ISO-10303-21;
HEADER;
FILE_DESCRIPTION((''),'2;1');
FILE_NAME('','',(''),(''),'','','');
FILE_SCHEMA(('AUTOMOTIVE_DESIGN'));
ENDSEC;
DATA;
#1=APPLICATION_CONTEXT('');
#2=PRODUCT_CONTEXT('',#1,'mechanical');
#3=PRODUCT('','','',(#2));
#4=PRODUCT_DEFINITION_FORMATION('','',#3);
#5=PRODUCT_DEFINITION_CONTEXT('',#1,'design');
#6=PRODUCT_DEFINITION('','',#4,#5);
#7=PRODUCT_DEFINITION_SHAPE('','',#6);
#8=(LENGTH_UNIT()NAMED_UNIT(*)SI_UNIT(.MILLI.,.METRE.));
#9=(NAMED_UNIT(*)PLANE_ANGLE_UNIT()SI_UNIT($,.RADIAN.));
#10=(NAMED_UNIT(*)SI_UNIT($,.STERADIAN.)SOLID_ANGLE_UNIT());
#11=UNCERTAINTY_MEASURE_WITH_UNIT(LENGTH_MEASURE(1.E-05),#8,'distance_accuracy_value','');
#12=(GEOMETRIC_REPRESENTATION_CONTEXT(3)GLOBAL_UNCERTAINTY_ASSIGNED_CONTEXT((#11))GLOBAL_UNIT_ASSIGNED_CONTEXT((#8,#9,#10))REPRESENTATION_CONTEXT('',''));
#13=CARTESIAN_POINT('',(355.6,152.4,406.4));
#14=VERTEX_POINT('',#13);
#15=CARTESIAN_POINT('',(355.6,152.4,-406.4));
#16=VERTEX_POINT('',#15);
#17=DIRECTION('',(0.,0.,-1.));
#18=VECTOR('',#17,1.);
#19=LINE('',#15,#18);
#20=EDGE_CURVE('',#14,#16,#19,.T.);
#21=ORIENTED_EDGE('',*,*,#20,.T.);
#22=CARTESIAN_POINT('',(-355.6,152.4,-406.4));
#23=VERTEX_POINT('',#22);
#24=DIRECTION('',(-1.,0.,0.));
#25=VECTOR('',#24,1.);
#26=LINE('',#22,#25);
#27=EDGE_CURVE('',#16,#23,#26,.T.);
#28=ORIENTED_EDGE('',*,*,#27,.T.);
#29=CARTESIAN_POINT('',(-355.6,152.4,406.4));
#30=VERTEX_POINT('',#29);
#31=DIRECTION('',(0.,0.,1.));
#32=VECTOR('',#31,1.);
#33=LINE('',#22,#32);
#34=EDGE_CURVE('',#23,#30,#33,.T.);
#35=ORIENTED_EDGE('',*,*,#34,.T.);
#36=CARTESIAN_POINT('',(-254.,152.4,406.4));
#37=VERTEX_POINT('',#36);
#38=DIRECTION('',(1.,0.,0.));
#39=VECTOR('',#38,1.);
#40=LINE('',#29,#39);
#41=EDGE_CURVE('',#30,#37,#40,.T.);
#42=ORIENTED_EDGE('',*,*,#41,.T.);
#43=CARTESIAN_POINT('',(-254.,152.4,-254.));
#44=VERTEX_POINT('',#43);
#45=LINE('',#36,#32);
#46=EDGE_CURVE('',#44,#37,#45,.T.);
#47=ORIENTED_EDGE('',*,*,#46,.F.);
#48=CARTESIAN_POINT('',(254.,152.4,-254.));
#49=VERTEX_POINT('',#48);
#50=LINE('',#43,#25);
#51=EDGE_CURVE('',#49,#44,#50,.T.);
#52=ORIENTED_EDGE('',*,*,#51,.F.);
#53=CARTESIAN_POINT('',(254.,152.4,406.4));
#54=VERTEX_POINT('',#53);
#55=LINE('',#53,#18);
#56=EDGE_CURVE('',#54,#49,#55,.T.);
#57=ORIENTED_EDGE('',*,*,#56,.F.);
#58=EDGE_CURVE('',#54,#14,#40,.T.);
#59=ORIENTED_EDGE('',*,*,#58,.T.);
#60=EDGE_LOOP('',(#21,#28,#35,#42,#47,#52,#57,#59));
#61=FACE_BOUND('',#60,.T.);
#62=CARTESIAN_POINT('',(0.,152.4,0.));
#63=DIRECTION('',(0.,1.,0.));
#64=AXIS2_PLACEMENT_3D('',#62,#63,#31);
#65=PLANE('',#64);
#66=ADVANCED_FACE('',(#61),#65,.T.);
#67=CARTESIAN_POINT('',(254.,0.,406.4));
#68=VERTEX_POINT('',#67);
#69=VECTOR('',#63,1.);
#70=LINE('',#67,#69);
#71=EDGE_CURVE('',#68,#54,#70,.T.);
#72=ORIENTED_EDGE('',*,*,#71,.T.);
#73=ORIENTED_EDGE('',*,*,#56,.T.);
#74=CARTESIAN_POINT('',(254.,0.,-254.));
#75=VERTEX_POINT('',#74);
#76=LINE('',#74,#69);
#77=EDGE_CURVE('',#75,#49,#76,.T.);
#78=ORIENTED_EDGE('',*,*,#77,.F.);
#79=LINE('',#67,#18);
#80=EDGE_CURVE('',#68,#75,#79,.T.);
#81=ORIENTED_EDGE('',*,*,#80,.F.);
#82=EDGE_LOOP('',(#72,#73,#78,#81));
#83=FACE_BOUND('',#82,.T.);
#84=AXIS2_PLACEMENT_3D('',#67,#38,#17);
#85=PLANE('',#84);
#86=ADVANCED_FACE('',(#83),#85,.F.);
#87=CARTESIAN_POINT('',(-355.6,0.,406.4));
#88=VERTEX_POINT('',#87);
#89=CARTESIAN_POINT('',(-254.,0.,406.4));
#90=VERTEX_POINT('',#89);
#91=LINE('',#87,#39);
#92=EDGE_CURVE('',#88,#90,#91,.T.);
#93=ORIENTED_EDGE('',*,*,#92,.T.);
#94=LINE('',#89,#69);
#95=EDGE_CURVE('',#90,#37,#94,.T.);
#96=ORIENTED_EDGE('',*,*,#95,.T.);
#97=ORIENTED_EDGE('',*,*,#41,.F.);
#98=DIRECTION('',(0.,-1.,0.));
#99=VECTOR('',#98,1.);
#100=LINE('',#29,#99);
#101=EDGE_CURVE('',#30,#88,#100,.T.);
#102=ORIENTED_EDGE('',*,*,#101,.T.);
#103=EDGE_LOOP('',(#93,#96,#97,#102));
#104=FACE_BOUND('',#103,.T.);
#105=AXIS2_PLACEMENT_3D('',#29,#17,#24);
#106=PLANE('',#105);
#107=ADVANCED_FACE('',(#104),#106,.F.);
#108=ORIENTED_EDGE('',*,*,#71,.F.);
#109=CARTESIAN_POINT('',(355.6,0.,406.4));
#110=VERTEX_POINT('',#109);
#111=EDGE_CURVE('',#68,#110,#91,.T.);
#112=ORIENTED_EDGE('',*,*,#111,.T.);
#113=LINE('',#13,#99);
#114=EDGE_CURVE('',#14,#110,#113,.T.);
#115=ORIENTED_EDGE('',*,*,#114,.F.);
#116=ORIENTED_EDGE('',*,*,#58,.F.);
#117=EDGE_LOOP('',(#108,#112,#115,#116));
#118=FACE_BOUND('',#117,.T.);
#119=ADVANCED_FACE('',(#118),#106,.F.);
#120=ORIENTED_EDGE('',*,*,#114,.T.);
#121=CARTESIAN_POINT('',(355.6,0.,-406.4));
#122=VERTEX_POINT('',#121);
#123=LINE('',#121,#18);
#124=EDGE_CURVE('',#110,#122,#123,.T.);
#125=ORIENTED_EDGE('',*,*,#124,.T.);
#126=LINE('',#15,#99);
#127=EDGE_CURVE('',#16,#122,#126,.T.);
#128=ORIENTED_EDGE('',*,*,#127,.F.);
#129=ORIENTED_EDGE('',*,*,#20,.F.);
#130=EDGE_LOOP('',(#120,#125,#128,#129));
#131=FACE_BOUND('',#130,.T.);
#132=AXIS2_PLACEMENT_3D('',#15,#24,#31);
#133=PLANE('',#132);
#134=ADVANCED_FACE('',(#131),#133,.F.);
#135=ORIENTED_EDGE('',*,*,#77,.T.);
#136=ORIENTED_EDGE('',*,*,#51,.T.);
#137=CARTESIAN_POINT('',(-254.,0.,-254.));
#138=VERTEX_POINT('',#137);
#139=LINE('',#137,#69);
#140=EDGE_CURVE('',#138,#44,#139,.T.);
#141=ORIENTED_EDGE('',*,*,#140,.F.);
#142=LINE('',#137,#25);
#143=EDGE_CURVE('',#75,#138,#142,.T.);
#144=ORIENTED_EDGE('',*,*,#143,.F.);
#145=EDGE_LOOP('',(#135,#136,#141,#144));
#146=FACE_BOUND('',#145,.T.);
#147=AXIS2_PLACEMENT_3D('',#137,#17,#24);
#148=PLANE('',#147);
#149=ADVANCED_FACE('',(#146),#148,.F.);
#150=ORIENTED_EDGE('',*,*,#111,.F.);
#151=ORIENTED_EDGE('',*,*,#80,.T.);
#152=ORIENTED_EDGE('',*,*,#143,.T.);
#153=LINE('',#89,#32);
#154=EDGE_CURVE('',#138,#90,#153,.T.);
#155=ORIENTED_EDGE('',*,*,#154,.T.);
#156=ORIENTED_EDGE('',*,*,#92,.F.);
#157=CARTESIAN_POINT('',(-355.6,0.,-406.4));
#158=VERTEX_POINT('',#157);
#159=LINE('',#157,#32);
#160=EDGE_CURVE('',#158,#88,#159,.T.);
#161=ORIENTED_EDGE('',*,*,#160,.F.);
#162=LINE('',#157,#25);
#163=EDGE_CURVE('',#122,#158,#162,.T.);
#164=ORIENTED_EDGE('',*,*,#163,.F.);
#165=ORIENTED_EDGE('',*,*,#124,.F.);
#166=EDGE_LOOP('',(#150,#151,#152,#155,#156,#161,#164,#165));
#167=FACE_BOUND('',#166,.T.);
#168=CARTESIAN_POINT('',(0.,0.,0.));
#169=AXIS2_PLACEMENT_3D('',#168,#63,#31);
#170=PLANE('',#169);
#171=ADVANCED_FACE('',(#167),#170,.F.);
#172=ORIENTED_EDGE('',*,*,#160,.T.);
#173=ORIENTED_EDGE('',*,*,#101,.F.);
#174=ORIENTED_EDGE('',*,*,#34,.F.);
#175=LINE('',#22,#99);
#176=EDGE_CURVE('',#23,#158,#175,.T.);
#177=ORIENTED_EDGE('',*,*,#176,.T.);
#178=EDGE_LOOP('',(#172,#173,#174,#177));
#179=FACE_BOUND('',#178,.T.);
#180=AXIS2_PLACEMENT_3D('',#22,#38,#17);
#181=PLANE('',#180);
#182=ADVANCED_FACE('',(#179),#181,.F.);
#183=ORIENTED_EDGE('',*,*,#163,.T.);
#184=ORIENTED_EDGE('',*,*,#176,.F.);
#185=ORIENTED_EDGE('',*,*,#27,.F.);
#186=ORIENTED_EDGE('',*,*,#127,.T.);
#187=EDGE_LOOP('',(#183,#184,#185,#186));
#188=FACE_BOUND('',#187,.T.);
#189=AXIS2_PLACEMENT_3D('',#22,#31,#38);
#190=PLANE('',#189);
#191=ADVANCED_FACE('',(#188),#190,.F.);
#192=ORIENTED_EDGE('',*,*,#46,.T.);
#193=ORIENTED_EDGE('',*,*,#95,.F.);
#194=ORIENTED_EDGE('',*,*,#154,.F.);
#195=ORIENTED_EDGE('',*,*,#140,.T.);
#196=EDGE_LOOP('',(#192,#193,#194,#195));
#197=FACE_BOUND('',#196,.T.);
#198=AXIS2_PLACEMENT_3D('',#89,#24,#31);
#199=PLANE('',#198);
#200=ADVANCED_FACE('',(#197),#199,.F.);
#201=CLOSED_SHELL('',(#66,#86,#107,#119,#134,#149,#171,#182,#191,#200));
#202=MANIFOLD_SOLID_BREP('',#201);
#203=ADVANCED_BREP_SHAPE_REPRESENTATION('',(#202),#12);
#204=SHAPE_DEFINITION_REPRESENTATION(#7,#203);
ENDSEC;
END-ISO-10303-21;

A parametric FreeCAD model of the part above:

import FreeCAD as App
import Part
import Sketcher
from FreeCAD import Vector
Q = App.Units.Quantity


def add_polygon(sketch, points):
    """Adds a closed chain of lines whose ends are joined by coincident constraints."""
    first, n = sketch.GeometryCount, len(points)
    for a, b in zip(points, points[1:] + points[:1]):
        sketch.addGeometry(Part.LineSegment(App.Vector(*a, 0), App.Vector(*b, 0)), False)
    for i in range(n):
        sketch.addConstraint(Sketcher.Constraint("Coincident", first + i, 2, first + (i + 1) % n, 1))

doc = App.newDocument("Part")
body = doc.addObject("PartDesign::Body", "Body")

# Sketch on XZ plane
sketch1 = body.newObject("Sketcher::SketchObject", "Sketch")
sketch1.AttachmentSupport = (doc.getObject("XZ_Plane"), [""])
sketch1.MapMode = "FlatFace"
add_polygon(sketch1, [(-356, -406), (-356, 406), (356, 406), (356, -406)])  # lines 0-3
sketch1.addConstraint([
    Sketcher.Constraint("Vertical", 0),
    Sketcher.Constraint("Horizontal", 1),
    Sketcher.Constraint("Vertical", 2),
    Sketcher.Constraint("Horizontal", 3),
    Sketcher.Constraint("Symmetric", 0, 2, 2, 2, -1, 1),
    Sketcher.Constraint("DistanceX", 1, 1, 1, 2, Q("28 in")),
    Sketcher.Constraint("DistanceY", 0, 1, 0, 2, Q("32 in")),
])
pad1 = body.newObject("PartDesign::Pad", "Pad")
pad1.Profile = sketch1
pad1.Length = Q("6 in")
pad1.Reversed = True

# Sketch on XZ plane
sketch2 = body.newObject("Sketcher::SketchObject", "Sketch001")
sketch2.AttachmentSupport = (doc.getObject("XZ_Plane"), [""])
sketch2.MapMode = "FlatFace"
sketch2.AttachmentOffset = App.Placement(Vector(0, 0, -6 * 25.4), App.Rotation())
add_polygon(sketch2, [(-254, -254), (-254, 406), (254, 406), (254, -254)])  # lines 0-3
sketch2.addConstraint([
    Sketcher.Constraint("Vertical", 0),
    Sketcher.Constraint("Horizontal", 1),
    Sketcher.Constraint("Vertical", 2),
    Sketcher.Constraint("Horizontal", 3),
    Sketcher.Constraint("DistanceX", 1, 1, 1, 2, Q("20 in")),
    Sketcher.Constraint("DistanceY", 0, 1, 0, 2, Q("26 in")),
    Sketcher.Constraint("DistanceX", 0, 2, -1, 1, Q("10 in")),
    Sketcher.Constraint("DistanceY", -1, 1, 0, 2, Q("16 in")),
])
pocket1 = body.newObject("PartDesign::Pocket", "Pocket")
pocket1.Profile = sketch2
pocket1.Type = "ThroughAll"
pocket1.Reversed = True

doc.recompute()
